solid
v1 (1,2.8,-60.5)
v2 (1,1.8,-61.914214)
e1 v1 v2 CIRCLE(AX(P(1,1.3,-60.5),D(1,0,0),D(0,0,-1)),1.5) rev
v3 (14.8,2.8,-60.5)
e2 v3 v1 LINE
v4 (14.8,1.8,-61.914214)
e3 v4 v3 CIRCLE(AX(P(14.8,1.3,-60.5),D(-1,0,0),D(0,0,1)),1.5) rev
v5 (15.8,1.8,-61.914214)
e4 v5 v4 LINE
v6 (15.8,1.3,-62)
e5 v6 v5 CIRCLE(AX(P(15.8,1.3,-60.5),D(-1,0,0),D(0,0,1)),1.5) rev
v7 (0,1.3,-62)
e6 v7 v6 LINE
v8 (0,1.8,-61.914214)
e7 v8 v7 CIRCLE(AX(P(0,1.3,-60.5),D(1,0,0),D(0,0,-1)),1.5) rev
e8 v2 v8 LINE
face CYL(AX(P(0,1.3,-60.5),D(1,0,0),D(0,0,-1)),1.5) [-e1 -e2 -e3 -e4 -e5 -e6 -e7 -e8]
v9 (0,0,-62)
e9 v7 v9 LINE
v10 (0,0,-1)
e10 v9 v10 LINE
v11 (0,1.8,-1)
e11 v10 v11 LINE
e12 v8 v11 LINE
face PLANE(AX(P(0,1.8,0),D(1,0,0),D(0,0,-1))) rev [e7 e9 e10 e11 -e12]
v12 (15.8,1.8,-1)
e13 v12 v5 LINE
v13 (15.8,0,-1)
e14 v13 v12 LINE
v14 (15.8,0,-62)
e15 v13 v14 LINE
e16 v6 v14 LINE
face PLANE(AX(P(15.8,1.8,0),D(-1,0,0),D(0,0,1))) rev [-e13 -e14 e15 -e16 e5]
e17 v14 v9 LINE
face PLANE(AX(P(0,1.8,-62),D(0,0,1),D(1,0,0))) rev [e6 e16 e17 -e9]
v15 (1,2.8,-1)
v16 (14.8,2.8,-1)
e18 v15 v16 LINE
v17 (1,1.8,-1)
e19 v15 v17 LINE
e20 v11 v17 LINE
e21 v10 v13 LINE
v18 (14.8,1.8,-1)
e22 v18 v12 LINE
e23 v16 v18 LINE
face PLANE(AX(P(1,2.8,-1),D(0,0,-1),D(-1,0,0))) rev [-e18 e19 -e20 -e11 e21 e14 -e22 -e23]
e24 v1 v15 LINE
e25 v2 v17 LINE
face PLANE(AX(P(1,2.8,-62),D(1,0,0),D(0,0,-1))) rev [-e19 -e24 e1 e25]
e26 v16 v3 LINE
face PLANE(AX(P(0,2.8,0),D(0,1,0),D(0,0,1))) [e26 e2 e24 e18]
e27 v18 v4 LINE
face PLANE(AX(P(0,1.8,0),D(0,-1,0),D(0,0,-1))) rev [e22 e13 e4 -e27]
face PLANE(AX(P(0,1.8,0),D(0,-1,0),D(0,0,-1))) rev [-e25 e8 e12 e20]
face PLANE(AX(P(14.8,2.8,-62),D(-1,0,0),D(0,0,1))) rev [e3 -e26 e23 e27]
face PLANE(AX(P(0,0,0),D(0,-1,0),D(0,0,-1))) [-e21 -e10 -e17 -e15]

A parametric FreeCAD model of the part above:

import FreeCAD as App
import Part
import Sketcher


def edges_at(feature, points):
    """Names of the edges that pass closest to the given points."""
    edges = feature.Shape.Edges
    near = lambda p: min(range(len(edges)), key=lambda i: edges[i].distToShape(Part.Vertex(*p))[0])
    return sorted({f"Edge{near(p) + 1}" for p in points})


def add_polygon(sketch, points):
    """Adds a closed chain of lines whose ends are joined by coincident constraints."""
    first, n = sketch.GeometryCount, len(points)
    for a, b in zip(points, points[1:] + points[:1]):
        sketch.addGeometry(Part.LineSegment(App.Vector(*a, 0), App.Vector(*b, 0)), False)
    for i in range(n):
        sketch.addConstraint(Sketcher.Constraint("Coincident", first + i, 2, first + (i + 1) % n, 1))

doc = App.newDocument("Part")
body = doc.addObject("PartDesign::Body", "Body")

sketch1 = body.newObject("Sketcher::SketchObject", "Sketch")
sketch1.AttachmentSupport = (doc.getObject("XZ_Plane"), [""])
sketch1.MapMode = "FlatFace"
add_polygon(sketch1, [(0, -62), (0, 0), (16, 0), (16, -62)])
sketch1.addConstraint([
    Sketcher.Constraint("Vertical", 0),
    Sketcher.Constraint("Horizontal", 1),
    Sketcher.Constraint("Vertical", 2),
    Sketcher.Constraint("Horizontal", 3),
    Sketcher.Constraint("Coincident", 0, 2, -1, 1),
    Sketcher.Constraint("DistanceY", 0, 1, 0, 2, 62.0),
    Sketcher.Constraint("DistanceX", 1, 1, 1, 2, 15.8),
])
pad1 = body.newObject("PartDesign::Pad", "Pad")
pad1.Profile = sketch1
pad1.Length = 1.8
pad1.Reversed = True

sketch2 = body.newObject("Sketcher::SketchObject", "Sketch001")
sketch2.AttachmentSupport = (doc.getObject("XZ_Plane"), [""])
sketch2.MapMode = "FlatFace"
sketch2.AttachmentOffset = App.Placement(App.Vector(0, 0, -1.8), App.Rotation())
add_polygon(sketch2, [(1, -62), (1, -1), (15, -1), (15, -62)])
sketch2.addConstraint([
    Sketcher.Constraint("Vertical", 0),
    Sketcher.Constraint("Horizontal", 1),
    Sketcher.Constraint("Vertical", 2),
    Sketcher.Constraint("Horizontal", 3),
    Sketcher.Constraint("DistanceY", 0, 1, 0, 2, 61.0),
    Sketcher.Constraint("DistanceX", 1, 1, 1, 2, 13.8),
    Sketcher.Constraint("DistanceX", -1, 1, 0, 2, 1.0),
    Sketcher.Constraint("DistanceY", 0, 2, -1, 1, 1.0),
])
pad2 = body.newObject("PartDesign::Pad", "Pad001")
pad2.Profile = sketch2
pad2.Length = 1
pad2.Reversed = True
doc.recompute()

fillet = body.newObject("PartDesign::Fillet", "Fillet")
fillet.Base = (pad2, edges_at(pad2, [(7.9, 2.8, -62)]))
fillet.Radius = 1.5

sketch3 = body.newObject("Sketcher::SketchObject", "Sketch002")
sketch3.AttachmentSupport = (doc.getObject("XZ_Plane"), [""])
sketch3.MapMode = "FlatFace"
sketch3.AttachmentOffset = App.Placement(App.Vector(0, 0, -2.8), App.Rotation())
add_polygon(sketch3, [(0, -1), (0, 0), (15.8, 0), (15.8, -1)])
sketch3.addConstraint([
    Sketcher.Constraint("Vertical", 0),
    Sketcher.Constraint("Horizontal", 1),
    Sketcher.Constraint("Vertical", 2),
    Sketcher.Constraint("Horizontal", 3),
    Sketcher.Constraint("Coincident", 0, 2, -1, 1),
    Sketcher.Constraint("DistanceY", 0, 1, 0, 2, 1.0),
    Sketcher.Constraint("DistanceX", 1, 1, 1, 2, 15.8),
])
pocket1 = body.newObject("PartDesign::Pocket", "Pocket")
pocket1.Profile = sketch3
pocket1.Length = 10
pocket1.Reversed = True

doc.recompute()
